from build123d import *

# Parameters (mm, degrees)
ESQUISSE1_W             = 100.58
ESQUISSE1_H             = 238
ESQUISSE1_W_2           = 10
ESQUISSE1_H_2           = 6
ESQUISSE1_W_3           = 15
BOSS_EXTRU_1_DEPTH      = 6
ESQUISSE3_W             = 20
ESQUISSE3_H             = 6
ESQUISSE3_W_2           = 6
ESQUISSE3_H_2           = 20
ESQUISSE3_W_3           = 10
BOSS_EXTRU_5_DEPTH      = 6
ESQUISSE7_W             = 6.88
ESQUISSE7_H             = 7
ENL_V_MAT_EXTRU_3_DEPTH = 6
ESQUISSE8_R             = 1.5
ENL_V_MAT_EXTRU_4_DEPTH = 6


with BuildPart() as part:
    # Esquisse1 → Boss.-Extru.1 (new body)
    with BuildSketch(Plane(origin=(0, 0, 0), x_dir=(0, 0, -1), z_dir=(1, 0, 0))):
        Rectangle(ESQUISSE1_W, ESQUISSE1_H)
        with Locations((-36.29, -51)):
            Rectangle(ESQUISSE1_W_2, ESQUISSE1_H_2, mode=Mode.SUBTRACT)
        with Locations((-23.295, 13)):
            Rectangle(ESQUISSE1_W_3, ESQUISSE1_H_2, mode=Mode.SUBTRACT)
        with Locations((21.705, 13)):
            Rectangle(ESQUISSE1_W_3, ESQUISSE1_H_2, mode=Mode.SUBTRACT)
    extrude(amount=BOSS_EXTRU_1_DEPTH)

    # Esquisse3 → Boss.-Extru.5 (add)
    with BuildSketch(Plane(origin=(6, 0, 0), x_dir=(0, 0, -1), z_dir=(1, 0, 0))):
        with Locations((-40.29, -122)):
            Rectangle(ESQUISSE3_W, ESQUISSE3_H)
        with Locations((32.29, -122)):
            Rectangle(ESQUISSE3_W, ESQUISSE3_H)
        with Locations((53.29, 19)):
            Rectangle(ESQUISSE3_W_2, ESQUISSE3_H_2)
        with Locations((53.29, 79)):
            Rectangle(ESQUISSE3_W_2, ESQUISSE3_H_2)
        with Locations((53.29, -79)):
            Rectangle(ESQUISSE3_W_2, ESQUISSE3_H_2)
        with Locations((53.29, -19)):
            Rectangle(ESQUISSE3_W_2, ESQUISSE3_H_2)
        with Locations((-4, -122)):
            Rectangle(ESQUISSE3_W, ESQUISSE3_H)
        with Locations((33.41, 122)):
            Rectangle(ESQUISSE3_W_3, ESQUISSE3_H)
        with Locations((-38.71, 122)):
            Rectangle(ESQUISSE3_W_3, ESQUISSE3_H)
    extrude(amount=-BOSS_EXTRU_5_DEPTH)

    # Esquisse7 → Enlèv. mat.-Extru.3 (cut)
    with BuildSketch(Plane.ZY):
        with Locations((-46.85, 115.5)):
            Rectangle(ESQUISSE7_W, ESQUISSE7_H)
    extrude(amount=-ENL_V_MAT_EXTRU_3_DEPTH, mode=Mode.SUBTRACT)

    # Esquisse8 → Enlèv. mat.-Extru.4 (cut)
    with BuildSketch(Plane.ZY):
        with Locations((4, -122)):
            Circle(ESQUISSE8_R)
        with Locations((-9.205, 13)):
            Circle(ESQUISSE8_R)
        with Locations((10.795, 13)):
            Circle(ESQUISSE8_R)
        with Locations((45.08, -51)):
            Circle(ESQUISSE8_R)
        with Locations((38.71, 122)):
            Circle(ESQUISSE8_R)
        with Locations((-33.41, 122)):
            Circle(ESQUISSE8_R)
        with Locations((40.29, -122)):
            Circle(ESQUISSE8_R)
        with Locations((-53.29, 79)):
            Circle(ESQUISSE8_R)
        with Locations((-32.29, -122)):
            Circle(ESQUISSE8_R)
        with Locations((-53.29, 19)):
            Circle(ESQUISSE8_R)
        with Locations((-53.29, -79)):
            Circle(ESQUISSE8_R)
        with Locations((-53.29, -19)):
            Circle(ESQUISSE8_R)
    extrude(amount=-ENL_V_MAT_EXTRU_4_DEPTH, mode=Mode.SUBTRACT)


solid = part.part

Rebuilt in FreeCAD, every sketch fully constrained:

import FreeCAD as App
import Part
import Sketcher
Q = App.Units.Quantity


def add_polygon(sketch, points):
    """Adds a closed chain of lines whose ends are joined by coincident constraints."""
    first, n = sketch.GeometryCount, len(points)
    for a, b in zip(points, points[1:] + points[:1]):
        sketch.addGeometry(Part.LineSegment(App.Vector(*a, 0), App.Vector(*b, 0)), False)
    for i in range(n):
        sketch.addConstraint(Sketcher.Constraint("Coincident", first + i, 2, first + (i + 1) % n, 1))

doc = App.newDocument("Part")
params = doc.addObject("Spreadsheet::Sheet", "Params")
for row, (alias, value) in enumerate([
    ("sketch1_width", "238 mm"),
    ("sketch1_width2", "6 mm"),
    ("sketch1_height", "10 mm"),
    ("sketch1_height2", "15 mm"),
    ("sketch1_height3", "100.58 mm"),
    ("pad1_length", "6 mm"),
    ("sketch2_width", "6 mm"),
    ("sketch2_width2", "20 mm"),
    ("sketch2_height", "10 mm"),
    ("pad2_length", "6 mm"),
    ("sketch3_width", "7 mm"),
    ("sketch3_height", "6.88 mm"),
    ("pocket1_length", "6 mm"),
    ("sketch4_diameter", "3 mm"),
    ("pocket2_length", "6 mm"),
], start=1):
    params.set(f"A{row}", alias)
    params.set(f"B{row}", "=" + value)
    params.setAlias(f"B{row}", alias)

body = doc.addObject("PartDesign::Body", "Body")

# Sketch on YZ plane
sketch1 = body.newObject("Sketcher::SketchObject", "Sketch")
sketch1.AttachmentSupport = (doc.getObject("YZ_Plane"), [""])
sketch1.MapMode = "FlatFace"
add_polygon(sketch1, [(119, 50.29), (-119, 50.29), (-119, -50.29), (119, -50.29)])  # lines 0-3
add_polygon(sketch1, [(-54, 31.29), (-54, 41.29), (-48, 41.29), (-48, 31.29)])  # lines 4-7
add_polygon(sketch1, [(10, 15.795), (10, 30.795), (16, 30.795), (16, 15.795)])  # lines 8-11
add_polygon(sketch1, [(10, -29.205), (10, -14.205), (16, -14.205), (16, -29.205)])  # lines 12-15
sketch1.addConstraint([
    Sketcher.Constraint("Horizontal", 0),
    Sketcher.Constraint("Vertical", 1),
    Sketcher.Constraint("Horizontal", 2),
    Sketcher.Constraint("Vertical", 3),
    Sketcher.Constraint("Vertical", 4),
    Sketcher.Constraint("Horizontal", 5),
    Sketcher.Constraint("Vertical", 6),
    Sketcher.Constraint("Horizontal", 7),
    Sketcher.Constraint("Vertical", 8),
    Sketcher.Constraint("Horizontal", 9),
    Sketcher.Constraint("Vertical", 10),
    Sketcher.Constraint("Horizontal", 11),
    Sketcher.Constraint("Vertical", 12),
    Sketcher.Constraint("Horizontal", 13),
    Sketcher.Constraint("Vertical", 14),
    Sketcher.Constraint("Horizontal", 15),
    Sketcher.Constraint("Symmetric", 0, 2, 2, 2, -1, 1),
    Sketcher.Constraint("Vertical", 11, 2, 12, 2),
    Sketcher.Constraint("Vertical", 10, 2, 13, 2),
    Sketcher.Constraint("Equal", 7, 9),
    Sketcher.Constraint("Equal", 10, 12),
    Sketcher.Constraint("DistanceX", 0, 2, 0, 1, Q("238 mm")),
    Sketcher.Constraint("DistanceX", 5, 1, 5, 2, Q("6 mm")),
    Sketcher.Constraint("DistanceY", 4, 1, 4, 2, Q("10 mm")),
    Sketcher.Constraint("DistanceY", 8, 1, 8, 2, Q("15 mm")),
    Sketcher.Constraint("DistanceX", 4, 2, -1, 1, Q("54 mm")),
    Sketcher.Constraint("DistanceX", -1, 1, 8, 2, Q("10 mm")),
    Sketcher.Constraint("DistanceY", 4, 2, 0, 2, Q("9 mm")),
    Sketcher.Constraint("DistanceY", 12, 2, 11, 2, Q("30 mm")),
    Sketcher.Constraint("DistanceY", 1, 2, 1, 1, Q("100.58 mm")),
    Sketcher.Constraint("DistanceY", -1, 1, 8, 2, Q("30.795 mm")),
])
sketch1.setExpression("Constraints[37]", "Params.sketch1_width")
sketch1.setExpression("Constraints[38]", "Params.sketch1_width2")
sketch1.setExpression("Constraints[39]", "Params.sketch1_height")
sketch1.setExpression("Constraints[40]", "Params.sketch1_height2")
sketch1.setExpression("Constraints[45]", "Params.sketch1_height3")
pad1 = body.newObject("PartDesign::Pad", "Pad")
pad1.Profile = sketch1
pad1.setExpression("Length", "Params.pad1_length")

# Sketch on YZ plane
sketch2 = body.newObject("Sketcher::SketchObject", "Sketch001")
sketch2.AttachmentSupport = (doc.getObject("YZ_Plane"), [""])
sketch2.MapMode = "FlatFace"
sketch2.AttachmentOffset = App.Placement(App.Vector(0, 0, 6), App.Rotation())
add_polygon(sketch2, [(-119, 50.29), (-125, 50.29), (-125, 30.29), (-119, 30.29)])  # lines 0-3
add_polygon(sketch2, [(-119, -22.29), (-125, -22.29), (-125, -42.29), (-119, -42.29)])  # lines 4-7
add_polygon(sketch2, [(29, -50.29), (9, -50.29), (9, -56.29), (29, -56.29)])  # lines 8-11
add_polygon(sketch2, [(89, -50.29), (69, -50.29), (69, -56.29), (89, -56.29)])  # lines 12-15
add_polygon(sketch2, [(-69, -50.29), (-89, -50.29), (-89, -56.29), (-69, -56.29)])  # lines 16-19
add_polygon(sketch2, [(-9, -50.29), (-29, -50.29), (-29, -56.29), (-9, -56.29)])  # lines 20-23
add_polygon(sketch2, [(-119, 14), (-125, 14), (-125, -6), (-119, -6)])  # lines 24-27
add_polygon(sketch2, [(125, -28.41), (119, -28.41), (119, -38.41), (125, -38.41)])  # lines 28-31
add_polygon(sketch2, [(125, 43.71), (119, 43.71), (119, 33.71), (125, 33.71)])  # lines 32-35
sketch2.addConstraint([
    Sketcher.Constraint("Horizontal", 0),
    Sketcher.Constraint("Vertical", 1),
    Sketcher.Constraint("Horizontal", 2),
    Sketcher.Constraint("Vertical", 3),
    Sketcher.Constraint("Horizontal", 4),
    Sketcher.Constraint("Vertical", 5),
    Sketcher.Constraint("Horizontal", 6),
    Sketcher.Constraint("Vertical", 7),
    Sketcher.Constraint("Horizontal", 8),
    Sketcher.Constraint("Vertical", 9),
    Sketcher.Constraint("Horizontal", 10),
    Sketcher.Constraint("Vertical", 11),
    Sketcher.Constraint("Horizontal", 12),
    Sketcher.Constraint("Vertical", 13),
    Sketcher.Constraint("Horizontal", 14),
    Sketcher.Constraint("Vertical", 15),
    Sketcher.Constraint("Horizontal", 16),
    Sketcher.Constraint("Vertical", 17),
    Sketcher.Constraint("Horizontal", 18),
    Sketcher.Constraint("Vertical", 19),
    Sketcher.Constraint("Horizontal", 20),
    Sketcher.Constraint("Vertical", 21),
    Sketcher.Constraint("Horizontal", 22),
    Sketcher.Constraint("Vertical", 23),
    Sketcher.Constraint("Horizontal", 24),
    Sketcher.Constraint("Vertical", 25),
    Sketcher.Constraint("Horizontal", 26),
    Sketcher.Constraint("Vertical", 27),
    Sketcher.Constraint("Horizontal", 28),
    Sketcher.Constraint("Vertical", 29),
    Sketcher.Constraint("Horizontal", 30),
    Sketcher.Constraint("Vertical", 31),
    Sketcher.Constraint("Horizontal", 32),
    Sketcher.Constraint("Vertical", 33),
    Sketcher.Constraint("Horizontal", 34),
    Sketcher.Constraint("Vertical", 35),
    Sketcher.Constraint("Symmetric", 15, 2, 16, 2, -2),
    Sketcher.Constraint("Symmetric", 13, 2, 18, 2, -2),
    Sketcher.Constraint("Symmetric", 11, 2, 20, 2, -2),
    Sketcher.Constraint("Symmetric", 9, 2, 22, 2, -2),
    Sketcher.Constraint("Horizontal", 11, 2, 12, 2),
    Sketcher.Constraint("Horizontal", 10, 2, 13, 2),
    Sketcher.Constraint("Vertical", 1, 2, 4, 2),
    Sketcher.Constraint("Vertical", 3, 2, 6, 2),
    Sketcher.Constraint("Vertical", 5, 2, 24, 2),
    Sketcher.Constraint("Vertical", 7, 2, 26, 2),
    Sketcher.Constraint("Vertical", 29, 2, 32, 2),
    Sketcher.Constraint("Vertical", 31, 2, 34, 2),
    Sketcher.Constraint("Equal", 10, 12),
    Sketcher.Constraint("Equal", 26, 28),
    Sketcher.Constraint("Equal", 22, 1),
    Sketcher.Constraint("Equal", 3, 5),
    Sketcher.Constraint("Equal", 34, 9),
    Sketcher.Constraint("Equal", 7, 25),
    Sketcher.Constraint("Equal", 31, 33),
    Sketcher.Constraint("DistanceX", 0, 2, 0, 1, Q("6 mm")),
    Sketcher.Constraint("DistanceX", 8, 2, 8, 1, Q("20 mm")),
    Sketcher.Constraint("DistanceY", 29, 2, 29, 1, Q("10 mm")),
    Sketcher.Constraint("DistanceX", 0, 2, -1, 1, Q("125 mm")),
    Sketcher.Constraint("DistanceX", -1, 1, 8, 2, Q("9 mm")),
    Sketcher.Constraint("DistanceX", -1, 1, 12, 2, Q("69 mm")),
    Sketcher.Constraint("DistanceY", -1, 1, 24, 2, Q("14 mm")),
    Sketcher.Constraint("DistanceX", -1, 1, 28, 2, Q("119 mm")),
    Sketcher.Constraint("DistanceY", 8, 2, 6, 2, Q("8 mm")),
    Sketcher.Constraint("DistanceY", 15, 2, 32, 2, Q("94 mm")),
    Sketcher.Constraint("DistanceY", -1, 1, 0, 2, Q("50.29 mm")),
    Sketcher.Constraint("DistanceY", 4, 2, -1, 1, Q("22.29 mm")),
    Sketcher.Constraint("DistanceY", 28, 2, -1, 1, Q("28.41 mm")),
])
sketch2.setExpression("Constraints[91]", "Params.sketch2_width")
sketch2.setExpression("Constraints[92]", "Params.sketch2_width2")
sketch2.setExpression("Constraints[93]", "Params.sketch2_height")
pad2 = body.newObject("PartDesign::Pad", "Pad001")
pad2.Profile = sketch2
pad2.setExpression("Length", "Params.pad2_length")
pad2.Reversed = True

# Sketch on YZ plane
sketch3 = body.newObject("Sketcher::SketchObject", "Sketch002")
sketch3.AttachmentSupport = (doc.getObject("YZ_Plane"), [""])
sketch3.MapMode = "FlatFace"
add_polygon(sketch3, [(119, -50.29), (112, -50.29), (112, -43.41), (119, -43.41)])  # lines 0-3
sketch3.addConstraint([
    Sketcher.Constraint("Horizontal", 0),
    Sketcher.Constraint("Vertical", 1),
    Sketcher.Constraint("Horizontal", 2),
    Sketcher.Constraint("Vertical", 3),
    Sketcher.Constraint("DistanceX", 0, 2, 0, 1, Q("7 mm")),
    Sketcher.Constraint("DistanceX", -1, 1, 0, 2, Q("112 mm")),
    Sketcher.Constraint("DistanceY", 1, 1, 1, 2, Q("6.88 mm")),
    Sketcher.Constraint("DistanceY", 0, 2, -1, 1, Q("50.29 mm")),
])
sketch3.setExpression("Constraints[8]", "Params.sketch3_width")
sketch3.setExpression("Constraints[10]", "Params.sketch3_height")
pocket1 = body.newObject("PartDesign::Pocket", "Pocket")
pocket1.Profile = sketch3
pocket1.setExpression("Length", "Params.pocket1_length")
pocket1.Reversed = True

# Sketch on YZ plane
sketch4 = body.newObject("Sketcher::SketchObject", "Sketch003")
sketch4.AttachmentSupport = (doc.getObject("YZ_Plane"), [""])
sketch4.MapMode = "FlatFace"
sketch4.addGeometry([
    Part.Circle(App.Vector(-122, 4, 0), App.Vector(0, 0, 1), 1.5),  # 0
    Part.Circle(App.Vector(13, -9.205, 0), App.Vector(0, 0, 1), 1.5),  # 1
    Part.Circle(App.Vector(13, 10.795, 0), App.Vector(0, 0, 1), 1.5),  # 2
    Part.Circle(App.Vector(-51, 45.08, 0), App.Vector(0, 0, 1), 1.5),  # 3
    Part.Circle(App.Vector(122, 38.71, 0), App.Vector(0, 0, 1), 1.5),  # 4
    Part.Circle(App.Vector(122, -33.41, 0), App.Vector(0, 0, 1), 1.5),  # 5
    Part.Circle(App.Vector(-122, 40.29, 0), App.Vector(0, 0, 1), 1.5),  # 6
    Part.Circle(App.Vector(79, -53.29, 0), App.Vector(0, 0, 1), 1.5),  # 7
    Part.Circle(App.Vector(-122, -32.29, 0), App.Vector(0, 0, 1), 1.5),  # 8
    Part.Circle(App.Vector(19, -53.29, 0), App.Vector(0, 0, 1), 1.5),  # 9
    Part.Circle(App.Vector(-79, -53.29, 0), App.Vector(0, 0, 1), 1.5),  # 10
    Part.Circle(App.Vector(-19, -53.29, 0), App.Vector(0, 0, 1), 1.5),  # 11
], False)
sketch4.addConstraint([
    Sketcher.Constraint("Equal", 0, 1),
    Sketcher.Constraint("Equal", 1, 2),
    Sketcher.Constraint("Equal", 2, 3),
    Sketcher.Constraint("Equal", 3, 4),
    Sketcher.Constraint("Equal", 4, 5),
    Sketcher.Constraint("Equal", 5, 6),
    Sketcher.Constraint("Equal", 6, 7),
    Sketcher.Constraint("Equal", 7, 8),
    Sketcher.Constraint("Equal", 8, 9),
    Sketcher.Constraint("Equal", 9, 10),
    Sketcher.Constraint("Equal", 10, 11),
    Sketcher.Constraint("Symmetric", 7, 3, 10, 3, -2),
    Sketcher.Constraint("Symmetric", 9, 3, 11, 3, -2),
    Sketcher.Constraint("Horizontal", 7, 3, 9, 3),
    Sketcher.Constraint("Vertical", 1, 3, 2, 3),
    Sketcher.Constraint("Vertical", 4, 3, 5, 3),
    Sketcher.Constraint("Vertical", 0, 3, 6, 3),
    Sketcher.Constraint("Vertical", 6, 3, 8, 3),
    Sketcher.Constraint("Diameter", 0, Q("3 mm")),
    Sketcher.Constraint("DistanceX", 0, 3, -1, 1, Q("122 mm")),
    Sketcher.Constraint("DistanceY", -1, 1, 0, 3, Q("4 mm")),
    Sketcher.Constraint("DistanceX", -1, 1, 1, 3, Q("13 mm")),
    Sketcher.Constraint("DistanceX", 3, 3, -1, 1, Q("51 mm")),
    Sketcher.Constraint("DistanceX", -1, 1, 4, 3, Q("122 mm")),
    Sketcher.Constraint("DistanceX", -1, 1, 7, 3, Q("79 mm")),
    Sketcher.Constraint("DistanceX", -1, 1, 9, 3, Q("19 mm")),
    Sketcher.Constraint("DistanceY", 1, 3, 2, 3, Q("20 mm")),
    Sketcher.Constraint("DistanceY", 7, 3, 4, 3, Q("92 mm")),
    Sketcher.Constraint("DistanceY", 10, 3, 8, 3, Q("21 mm")),
    Sketcher.Constraint("DistanceY", -1, 1, 3, 3, Q("45.08 mm")),
    Sketcher.Constraint("DistanceY", -1, 1, 4, 3, Q("38.71 mm")),
    Sketcher.Constraint("DistanceY", 5, 3, -1, 1, Q("33.41 mm")),
    Sketcher.Constraint("DistanceY", -1, 1, 6, 3, Q("40.29 mm")),
    Sketcher.Constraint("DistanceY", 1, 3, -1, 1, Q("9.205 mm")),
])
sketch4.setExpression("Constraints[18]", "Params.sketch4_diameter")
pocket2 = body.newObject("PartDesign::Pocket", "Pocket001")
pocket2.Profile = sketch4
pocket2.setExpression("Length", "Params.pocket2_length")
pocket2.Reversed = True

doc.recompute()
